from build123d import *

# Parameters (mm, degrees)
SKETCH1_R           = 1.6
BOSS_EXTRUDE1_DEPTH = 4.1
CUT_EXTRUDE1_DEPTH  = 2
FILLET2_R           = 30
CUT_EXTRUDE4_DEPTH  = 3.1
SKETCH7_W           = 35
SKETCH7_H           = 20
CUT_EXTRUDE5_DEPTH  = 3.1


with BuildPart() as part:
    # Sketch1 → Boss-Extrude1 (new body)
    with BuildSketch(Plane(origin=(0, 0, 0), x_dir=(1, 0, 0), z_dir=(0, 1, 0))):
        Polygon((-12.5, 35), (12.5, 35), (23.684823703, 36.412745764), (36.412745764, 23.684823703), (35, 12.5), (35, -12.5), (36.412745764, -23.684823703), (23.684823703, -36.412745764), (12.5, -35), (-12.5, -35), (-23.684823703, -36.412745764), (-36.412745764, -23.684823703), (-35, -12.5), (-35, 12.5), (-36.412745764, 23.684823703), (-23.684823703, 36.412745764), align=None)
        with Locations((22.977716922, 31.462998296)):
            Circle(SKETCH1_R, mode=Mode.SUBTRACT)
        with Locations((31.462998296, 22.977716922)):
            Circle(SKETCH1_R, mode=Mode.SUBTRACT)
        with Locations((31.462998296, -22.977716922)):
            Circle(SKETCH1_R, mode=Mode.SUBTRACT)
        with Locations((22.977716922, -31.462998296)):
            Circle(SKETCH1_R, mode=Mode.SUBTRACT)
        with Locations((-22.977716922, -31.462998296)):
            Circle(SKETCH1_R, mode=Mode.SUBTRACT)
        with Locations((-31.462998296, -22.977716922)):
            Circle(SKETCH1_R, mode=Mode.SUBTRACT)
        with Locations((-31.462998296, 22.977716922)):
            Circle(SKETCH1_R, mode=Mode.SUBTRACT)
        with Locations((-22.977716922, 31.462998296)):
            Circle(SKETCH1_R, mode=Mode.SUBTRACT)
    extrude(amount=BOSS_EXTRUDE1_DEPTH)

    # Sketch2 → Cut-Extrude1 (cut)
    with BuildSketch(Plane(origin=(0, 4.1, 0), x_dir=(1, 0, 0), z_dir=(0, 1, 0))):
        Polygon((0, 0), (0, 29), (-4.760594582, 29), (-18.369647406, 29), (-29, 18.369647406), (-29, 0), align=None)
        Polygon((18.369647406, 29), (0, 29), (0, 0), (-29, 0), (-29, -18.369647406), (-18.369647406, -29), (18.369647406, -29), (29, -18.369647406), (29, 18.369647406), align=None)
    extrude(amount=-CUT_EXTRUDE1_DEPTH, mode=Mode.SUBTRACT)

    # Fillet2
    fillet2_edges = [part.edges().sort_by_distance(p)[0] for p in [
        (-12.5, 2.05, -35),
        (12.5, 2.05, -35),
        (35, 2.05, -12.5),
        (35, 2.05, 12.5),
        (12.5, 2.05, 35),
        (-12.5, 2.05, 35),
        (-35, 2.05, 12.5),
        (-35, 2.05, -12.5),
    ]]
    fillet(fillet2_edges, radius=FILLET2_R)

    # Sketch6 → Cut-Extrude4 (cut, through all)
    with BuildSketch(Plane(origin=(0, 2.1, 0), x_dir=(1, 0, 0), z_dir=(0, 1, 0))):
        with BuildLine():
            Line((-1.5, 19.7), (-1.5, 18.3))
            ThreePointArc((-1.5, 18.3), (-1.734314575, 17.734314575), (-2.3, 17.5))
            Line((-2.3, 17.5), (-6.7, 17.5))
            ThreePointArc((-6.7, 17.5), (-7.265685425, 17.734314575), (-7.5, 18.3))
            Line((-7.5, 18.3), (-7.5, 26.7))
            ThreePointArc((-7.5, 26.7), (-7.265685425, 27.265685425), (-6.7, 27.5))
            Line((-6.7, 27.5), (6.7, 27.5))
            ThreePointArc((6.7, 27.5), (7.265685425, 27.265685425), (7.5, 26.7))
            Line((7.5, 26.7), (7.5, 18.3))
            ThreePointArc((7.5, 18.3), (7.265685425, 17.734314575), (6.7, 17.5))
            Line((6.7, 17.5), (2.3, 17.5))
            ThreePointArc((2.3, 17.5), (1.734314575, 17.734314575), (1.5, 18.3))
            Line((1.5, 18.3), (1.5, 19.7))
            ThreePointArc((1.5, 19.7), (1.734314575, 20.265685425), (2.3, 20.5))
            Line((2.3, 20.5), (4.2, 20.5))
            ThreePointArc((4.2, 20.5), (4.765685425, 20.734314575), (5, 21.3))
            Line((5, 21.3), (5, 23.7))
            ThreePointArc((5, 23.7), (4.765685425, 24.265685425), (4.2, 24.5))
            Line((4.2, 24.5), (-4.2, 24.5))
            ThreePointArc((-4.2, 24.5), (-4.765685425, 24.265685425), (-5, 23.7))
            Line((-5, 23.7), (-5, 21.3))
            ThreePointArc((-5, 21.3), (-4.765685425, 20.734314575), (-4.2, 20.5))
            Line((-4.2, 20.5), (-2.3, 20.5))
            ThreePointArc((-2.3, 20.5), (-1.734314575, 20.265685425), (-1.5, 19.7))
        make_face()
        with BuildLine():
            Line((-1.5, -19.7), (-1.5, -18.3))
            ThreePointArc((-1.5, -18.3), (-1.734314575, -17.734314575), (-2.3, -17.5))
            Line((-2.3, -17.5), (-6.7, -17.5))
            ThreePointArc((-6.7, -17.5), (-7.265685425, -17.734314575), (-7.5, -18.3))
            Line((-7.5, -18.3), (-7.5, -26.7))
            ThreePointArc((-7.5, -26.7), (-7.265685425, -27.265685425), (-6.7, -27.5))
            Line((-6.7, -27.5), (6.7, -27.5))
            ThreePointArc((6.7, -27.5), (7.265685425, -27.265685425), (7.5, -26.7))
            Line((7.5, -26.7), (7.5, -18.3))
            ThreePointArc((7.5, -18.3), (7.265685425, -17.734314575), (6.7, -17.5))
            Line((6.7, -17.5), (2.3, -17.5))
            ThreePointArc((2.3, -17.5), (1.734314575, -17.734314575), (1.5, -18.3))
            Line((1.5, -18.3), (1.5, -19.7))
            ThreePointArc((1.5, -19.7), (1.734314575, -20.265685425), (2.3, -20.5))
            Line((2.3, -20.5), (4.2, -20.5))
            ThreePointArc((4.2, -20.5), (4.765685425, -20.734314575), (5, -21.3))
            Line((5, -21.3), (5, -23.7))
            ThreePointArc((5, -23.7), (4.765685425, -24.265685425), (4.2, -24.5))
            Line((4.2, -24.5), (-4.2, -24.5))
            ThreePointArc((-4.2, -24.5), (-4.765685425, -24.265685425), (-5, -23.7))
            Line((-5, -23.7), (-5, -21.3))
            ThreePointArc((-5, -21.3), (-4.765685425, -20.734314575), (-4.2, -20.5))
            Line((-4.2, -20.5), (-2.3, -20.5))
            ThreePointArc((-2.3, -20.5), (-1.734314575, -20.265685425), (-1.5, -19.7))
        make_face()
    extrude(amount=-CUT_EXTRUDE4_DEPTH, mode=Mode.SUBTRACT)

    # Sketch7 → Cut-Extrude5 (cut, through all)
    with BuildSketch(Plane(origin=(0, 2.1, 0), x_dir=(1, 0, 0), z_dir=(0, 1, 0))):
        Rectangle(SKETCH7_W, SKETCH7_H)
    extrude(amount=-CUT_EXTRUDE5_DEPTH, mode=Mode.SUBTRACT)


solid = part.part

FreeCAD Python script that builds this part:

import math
import FreeCAD as App
import Part
import Sketcher


def edges_at(feature, points):
    """Names of the edges that pass closest to the given points."""
    edges = feature.Shape.Edges
    near = lambda p: min(range(len(edges)), key=lambda i: edges[i].distToShape(Part.Vertex(*p))[0])
    return sorted({f"Edge{near(p) + 1}" for p in points})

doc = App.newDocument("Part")
body = doc.addObject("PartDesign::Body", "Body")

# Sketch on XZ plane
sketch1 = body.newObject("Sketcher::SketchObject", "Sketch")
sketch1.AttachmentSupport = (doc.getObject("XZ_Plane"), [""])
sketch1.MapMode = "FlatFace"
sketch1.addGeometry([
    Part.LineSegment(App.Vector(12.5, -35, 0), App.Vector(-12.5, -35, 0)),  # 0
    Part.LineSegment(App.Vector(-12.5, -35, 0), App.Vector(-23.7, -36.4, 0)),  # 1
    Part.LineSegment(App.Vector(-23.7, -36.4, 0), App.Vector(-36.4, -23.7, 0)),  # 2
    Part.LineSegment(App.Vector(-36.4, -23.7, 0), App.Vector(-35, -12.5, 0)),  # 3
    Part.LineSegment(App.Vector(-35, -12.5, 0), App.Vector(-35, 12.5, 0)),  # 4
    Part.LineSegment(App.Vector(-35, 12.5, 0), App.Vector(-36.4, 23.7, 0)),  # 5
    Part.LineSegment(App.Vector(-36.4, 23.7, 0), App.Vector(-23.7, 36.4, 0)),  # 6
    Part.LineSegment(App.Vector(-23.7, 36.4, 0), App.Vector(-12.5, 35, 0)),  # 7
    Part.LineSegment(App.Vector(-12.5, 35, 0), App.Vector(12.5, 35, 0)),  # 8
    Part.LineSegment(App.Vector(12.5, 35, 0), App.Vector(23.7, 36.4, 0)),  # 9
    Part.LineSegment(App.Vector(23.7, 36.4, 0), App.Vector(36.4, 23.7, 0)),  # 10
    Part.LineSegment(App.Vector(36.4, 23.7, 0), App.Vector(35, 12.5, 0)),  # 11
    Part.LineSegment(App.Vector(35, 12.5, 0), App.Vector(35, -12.5, 0)),  # 12
    Part.LineSegment(App.Vector(35, -12.5, 0), App.Vector(36.4, -23.7, 0)),  # 13
    Part.LineSegment(App.Vector(36.4, -23.7, 0), App.Vector(23.7, -36.4, 0)),  # 14
    Part.LineSegment(App.Vector(23.7, -36.4, 0), App.Vector(12.5, -35, 0)),  # 15
    Part.Circle(App.Vector(23, 31.5, 0), App.Vector(0, 0, 1), 1.6),  # 16
    Part.Circle(App.Vector(31.5, 23, 0), App.Vector(0, 0, 1), 1.6),  # 17
    Part.Circle(App.Vector(-23, 31.5, 0), App.Vector(0, 0, 1), 1.6),  # 18
    Part.Circle(App.Vector(-31.5, 23, 0), App.Vector(0, 0, 1), 1.6),  # 19
    Part.Circle(App.Vector(31.5, -23, 0), App.Vector(0, 0, 1), 1.6),  # 20
    Part.Circle(App.Vector(23, -31.5, 0), App.Vector(0, 0, 1), 1.6),  # 21
    Part.Circle(App.Vector(-31.5, -23, 0), App.Vector(0, 0, 1), 1.6),  # 22
    Part.Circle(App.Vector(-23, -31.5, 0), App.Vector(0, 0, 1), 1.6),  # 23
], False)
sketch1.addConstraint([
    Sketcher.Constraint("Coincident", 0, 2, 1, 1),
    Sketcher.Constraint("Coincident", 1, 2, 2, 1),
    Sketcher.Constraint("Coincident", 2, 2, 3, 1),
    Sketcher.Constraint("Coincident", 3, 2, 4, 1),
    Sketcher.Constraint("Coincident", 4, 2, 5, 1),
    Sketcher.Constraint("Coincident", 5, 2, 6, 1),
    Sketcher.Constraint("Coincident", 6, 2, 7, 1),
    Sketcher.Constraint("Coincident", 7, 2, 8, 1),
    Sketcher.Constraint("Coincident", 8, 2, 9, 1),
    Sketcher.Constraint("Coincident", 9, 2, 10, 1),
    Sketcher.Constraint("Coincident", 10, 2, 11, 1),
    Sketcher.Constraint("Coincident", 11, 2, 12, 1),
    Sketcher.Constraint("Coincident", 12, 2, 13, 1),
    Sketcher.Constraint("Coincident", 13, 2, 14, 1),
    Sketcher.Constraint("Coincident", 14, 2, 15, 1),
    Sketcher.Constraint("Coincident", 15, 2, 0, 1),
    Sketcher.Constraint("Horizontal", 0),
    Sketcher.Constraint("Vertical", 4),
    Sketcher.Constraint("Horizontal", 8),
    Sketcher.Constraint("Vertical", 12),
    Sketcher.Constraint("Equal", 16, 17),
    Sketcher.Constraint("Equal", 17, 18),
    Sketcher.Constraint("Equal", 18, 19),
    Sketcher.Constraint("Equal", 19, 20),
    Sketcher.Constraint("Equal", 20, 21),
    Sketcher.Constraint("Equal", 21, 22),
    Sketcher.Constraint("Equal", 22, 23),
    Sketcher.Constraint("Symmetric", 19, 3, 20, 3, -1, 1),
    Sketcher.Constraint("Symmetric", 18, 3, 21, 3, -1, 1),
    Sketcher.Constraint("Symmetric", 17, 3, 22, 3, -1, 1),
    Sketcher.Constraint("Symmetric", 16, 3, 23, 3, -1, 1),
    Sketcher.Constraint("Symmetric", 0, 2, 8, 2, -1, 1),
    Sketcher.Constraint("Symmetric", 1, 2, 9, 2, -1, 1),
    Sketcher.Constraint("Symmetric", 2, 2, 10, 2, -1, 1),
    Sketcher.Constraint("Symmetric", 3, 2, 11, 2, -1, 1),
    Sketcher.Constraint("Symmetric", 5, 2, 13, 2, -1, 1),
    Sketcher.Constraint("Symmetric", 6, 2, 14, 2, -1, 1),
    Sketcher.Constraint("Symmetric", 16, 3, 18, 3, -2),
    Sketcher.Constraint("Symmetric", 17, 3, 19, 3, -2),
    Sketcher.Constraint("Symmetric", 6, 2, 9, 2, -2),
    Sketcher.Constraint("Symmetric", 5, 2, 10, 2, -2),
    Sketcher.Constraint("Perpendicular", 1, 5),
    Sketcher.Constraint("Perpendicular", 2, 6),
    Sketcher.Constraint("Perpendicular", 3, 7),
    Sketcher.Constraint("Perpendicular", 9, 13),
    Sketcher.Constraint("Perpendicular", 11, 15),
    Sketcher.Constraint("Horizontal", 4, 2, 11, 2),
    Sketcher.Constraint("Equal", 8, 4),
    Sketcher.Constraint("Equal", 1, 3),
    Sketcher.Constraint("Diameter", 16, 3.2),
    Sketcher.Constraint("DistanceX", 0, 2, 0, 1, 25.0),
    Sketcher.Constraint("Distance", 2, 18.0),
    Sketcher.Constraint("DistanceY", 0, 2, -1, 1, 35.0),
    Sketcher.Constraint("DistanceY", -1, 1, 16, 3, 31.462998),
    Sketcher.Constraint("DistanceX", -1, 1, 17, 3, 31.462998),
    Sketcher.Constraint("DistanceX", 16, 3, 17, 3, 8.485281),
    Sketcher.Constraint("DistanceY", 17, 3, 16, 3, 8.485281),
    Sketcher.Constraint("DistanceY", 1, 2, 22, 3, 13.435029),
])
pad1 = body.newObject("PartDesign::Pad", "Pad")
pad1.Profile = sketch1
pad1.Length = 4.1
pad1.Reversed = True

# Sketch on XZ plane
sketch2 = body.newObject("Sketcher::SketchObject", "Sketch001")
sketch2.AttachmentSupport = (doc.getObject("XZ_Plane"), [""])
sketch2.MapMode = "FlatFace"
sketch2.AttachmentOffset = App.Placement(App.Vector(0, 0, -4.1), App.Rotation())
sketch2.addGeometry([
    Part.LineSegment(App.Vector(-18, -29, 0), App.Vector(-29, -18, 0)),  # 0
    Part.LineSegment(App.Vector(-29, -18, 0), App.Vector(-29, 18, 0)),  # 1
    Part.LineSegment(App.Vector(-29, 18, 0), App.Vector(-18, 29, 0)),  # 2
    Part.LineSegment(App.Vector(-18, 29, 0), App.Vector(18, 29, 0)),  # 3
    Part.LineSegment(App.Vector(18, 29, 0), App.Vector(29, 18, 0)),  # 4
    Part.LineSegment(App.Vector(29, 18, 0), App.Vector(29, -18, 0)),  # 5
    Part.LineSegment(App.Vector(29, -18, 0), App.Vector(18, -29, 0)),  # 6
    Part.LineSegment(App.Vector(18, -29, 0), App.Vector(-18, -29, 0)),  # 7
], False)
sketch2.addConstraint([
    Sketcher.Constraint("Coincident", 0, 2, 1, 1),
    Sketcher.Constraint("Coincident", 1, 2, 2, 1),
    Sketcher.Constraint("Coincident", 2, 2, 3, 1),
    Sketcher.Constraint("Coincident", 3, 2, 4, 1),
    Sketcher.Constraint("Coincident", 4, 2, 5, 1),
    Sketcher.Constraint("Coincident", 5, 2, 6, 1),
    Sketcher.Constraint("Coincident", 6, 2, 7, 1),
    Sketcher.Constraint("Coincident", 7, 2, 0, 1),
    Sketcher.Constraint("Vertical", 1),
    Sketcher.Constraint("Horizontal", 3),
    Sketcher.Constraint("Vertical", 5),
    Sketcher.Constraint("Horizontal", 7),
    Sketcher.Constraint("Symmetric", 0, 2, 4, 2, -1, 1),
    Sketcher.Constraint("Symmetric", 2, 2, 6, 2, -1, 1),
    Sketcher.Constraint("Perpendicular", 0, 2),
    Sketcher.Constraint("Perpendicular", 2, 4),
    Sketcher.Constraint("Perpendicular", 4, 6),
    Sketcher.Constraint("Horizontal", 1, 2, 4, 2),
    Sketcher.Constraint("Vertical", 3, 2, 6, 2),
    Sketcher.Constraint("Equal", 7, 1),
    Sketcher.Constraint("DistanceX", 0, 2, -1, 1, 29.0),
    Sketcher.Constraint("Distance", 0, 15.033589),
])
pocket1 = body.newObject("PartDesign::Pocket", "Pocket")
pocket1.Profile = sketch2
pocket1.Length = 2
pocket1.Reversed = True
doc.recompute()

fillet = body.newObject("PartDesign::Fillet", "Fillet")
fillet.Base = (pocket1, edges_at(pocket1, [
    (-12.5, 2.05, -35),
    (12.5, 2.05, -35),
    (35, 2.05, -12.5),
    (35, 2.05, 12.5),
    (12.5, 2.05, 35),
    (-12.5, 2.05, 35),
    (-35, 2.05, 12.5),
    (-35, 2.05, -12.5),
]))
fillet.Radius = 30

# Sketch on XZ plane
sketch3 = body.newObject("Sketcher::SketchObject", "Sketch002")
sketch3.AttachmentSupport = (doc.getObject("XZ_Plane"), [""])
sketch3.MapMode = "FlatFace"
sketch3.AttachmentOffset = App.Placement(App.Vector(0, 0, -2.1), App.Rotation())
sketch3.addGeometry([
    Part.LineSegment(App.Vector(-1.5, -18.3, 0), App.Vector(-1.5, -19.7, 0)),  # 0
    Part.ArcOfCircle(Part.Circle(App.Vector(-2.3, -19.7, 0), App.Vector(0, 0, 1), 0.8), math.radians(-90), math.radians(0)),  # 1
    Part.LineSegment(App.Vector(-2.3, -20.5, 0), App.Vector(-4.2, -20.5, 0)),  # 2
    Part.ArcOfCircle(Part.Circle(App.Vector(-4.2, -21.3, 0), App.Vector(0, 0, 1), 0.8), math.radians(90), math.radians(180)),  # 3
    Part.LineSegment(App.Vector(-5, -21.3, 0), App.Vector(-5, -23.7, 0)),  # 4
    Part.ArcOfCircle(Part.Circle(App.Vector(-4.2, -23.7, 0), App.Vector(0, 0, 1), 0.8), math.radians(180), math.radians(270)),  # 5
    Part.LineSegment(App.Vector(-4.2, -24.5, 0), App.Vector(4.2, -24.5, 0)),  # 6
    Part.ArcOfCircle(Part.Circle(App.Vector(4.2, -23.7, 0), App.Vector(0, 0, 1), 0.8), math.radians(-90), math.radians(0)),  # 7
    Part.LineSegment(App.Vector(5, -23.7, 0), App.Vector(5, -21.3, 0)),  # 8
    Part.ArcOfCircle(Part.Circle(App.Vector(4.2, -21.3, 0), App.Vector(0, 0, 1), 0.8), math.radians(0), math.radians(90)),  # 9
    Part.LineSegment(App.Vector(4.2, -20.5, 0), App.Vector(2.3, -20.5, 0)),  # 10
    Part.ArcOfCircle(Part.Circle(App.Vector(2.3, -19.7, 0), App.Vector(0, 0, 1), 0.8), math.radians(180), math.radians(270)),  # 11
    Part.LineSegment(App.Vector(1.5, -19.7, 0), App.Vector(1.5, -18.3, 0)),  # 12
    Part.ArcOfCircle(Part.Circle(App.Vector(2.3, -18.3, 0), App.Vector(0, 0, 1), 0.8), math.radians(90), math.radians(180)),  # 13
    Part.LineSegment(App.Vector(2.3, -17.5, 0), App.Vector(6.7, -17.5, 0)),  # 14
    Part.ArcOfCircle(Part.Circle(App.Vector(6.7, -18.3, 0), App.Vector(0, 0, 1), 0.8), math.radians(0), math.radians(90)),  # 15
    Part.LineSegment(App.Vector(7.5, -18.3, 0), App.Vector(7.5, -26.7, 0)),  # 16
    Part.ArcOfCircle(Part.Circle(App.Vector(6.7, -26.7, 0), App.Vector(0, 0, 1), 0.8), math.radians(-90), math.radians(0)),  # 17
    Part.LineSegment(App.Vector(6.7, -27.5, 0), App.Vector(-6.7, -27.5, 0)),  # 18
    Part.ArcOfCircle(Part.Circle(App.Vector(-6.7, -26.7, 0), App.Vector(0, 0, 1), 0.8), math.radians(180), math.radians(270)),  # 19
    Part.LineSegment(App.Vector(-7.5, -26.7, 0), App.Vector(-7.5, -18.3, 0)),  # 20
    Part.ArcOfCircle(Part.Circle(App.Vector(-6.7, -18.3, 0), App.Vector(0, 0, 1), 0.8), math.radians(90), math.radians(180)),  # 21
    Part.LineSegment(App.Vector(-6.7, -17.5, 0), App.Vector(-2.3, -17.5, 0)),  # 22
    Part.ArcOfCircle(Part.Circle(App.Vector(-2.3, -18.3, 0), App.Vector(0, 0, 1), 0.8), math.radians(0), math.radians(90)),  # 23
    Part.LineSegment(App.Vector(-1.5, 19.7, 0), App.Vector(-1.5, 18.3, 0)),  # 24
    Part.ArcOfCircle(Part.Circle(App.Vector(-2.3, 18.3, 0), App.Vector(0, 0, 1), 0.8), math.radians(-90), math.radians(0)),  # 25
    Part.LineSegment(App.Vector(-2.3, 17.5, 0), App.Vector(-6.7, 17.5, 0)),  # 26
    Part.ArcOfCircle(Part.Circle(App.Vector(-6.7, 18.3, 0), App.Vector(0, 0, 1), 0.8), math.radians(180), math.radians(270)),  # 27
    Part.LineSegment(App.Vector(-7.5, 18.3, 0), App.Vector(-7.5, 26.7, 0)),  # 28
    Part.ArcOfCircle(Part.Circle(App.Vector(-6.7, 26.7, 0), App.Vector(0, 0, 1), 0.8), math.radians(90), math.radians(180)),  # 29
    Part.LineSegment(App.Vector(-6.7, 27.5, 0), App.Vector(6.7, 27.5, 0)),  # 30
    Part.ArcOfCircle(Part.Circle(App.Vector(6.7, 26.7, 0), App.Vector(0, 0, 1), 0.8), math.radians(0), math.radians(90)),  # 31
    Part.LineSegment(App.Vector(7.5, 26.7, 0), App.Vector(7.5, 18.3, 0)),  # 32
    Part.ArcOfCircle(Part.Circle(App.Vector(6.7, 18.3, 0), App.Vector(0, 0, 1), 0.8), math.radians(-90), math.radians(0)),  # 33
    Part.LineSegment(App.Vector(6.7, 17.5, 0), App.Vector(2.3, 17.5, 0)),  # 34
    Part.ArcOfCircle(Part.Circle(App.Vector(2.3, 18.3, 0), App.Vector(0, 0, 1), 0.8), math.radians(180), math.radians(270)),  # 35
    Part.LineSegment(App.Vector(1.5, 18.3, 0), App.Vector(1.5, 19.7, 0)),  # 36
    Part.ArcOfCircle(Part.Circle(App.Vector(2.3, 19.7, 0), App.Vector(0, 0, 1), 0.8), math.radians(90), math.radians(180)),  # 37
    Part.LineSegment(App.Vector(2.3, 20.5, 0), App.Vector(4.2, 20.5, 0)),  # 38
    Part.ArcOfCircle(Part.Circle(App.Vector(4.2, 21.3, 0), App.Vector(0, 0, 1), 0.8), math.radians(-90), math.radians(0)),  # 39
    Part.LineSegment(App.Vector(5, 21.3, 0), App.Vector(5, 23.7, 0)),  # 40
    Part.ArcOfCircle(Part.Circle(App.Vector(4.2, 23.7, 0), App.Vector(0, 0, 1), 0.8), math.radians(0), math.radians(90)),  # 41
    Part.LineSegment(App.Vector(4.2, 24.5, 0), App.Vector(-4.2, 24.5, 0)),  # 42
    Part.ArcOfCircle(Part.Circle(App.Vector(-4.2, 23.7, 0), App.Vector(0, 0, 1), 0.8), math.radians(90), math.radians(180)),  # 43
    Part.LineSegment(App.Vector(-5, 23.7, 0), App.Vector(-5, 21.3, 0)),  # 44
    Part.ArcOfCircle(Part.Circle(App.Vector(-4.2, 21.3, 0), App.Vector(0, 0, 1), 0.8), math.radians(180), math.radians(270)),  # 45
    Part.LineSegment(App.Vector(-4.2, 20.5, 0), App.Vector(-2.3, 20.5, 0)),  # 46
    Part.ArcOfCircle(Part.Circle(App.Vector(-2.3, 19.7, 0), App.Vector(0, 0, 1), 0.8), math.radians(0), math.radians(90)),  # 47
], False)
sketch3.addConstraint([
    Sketcher.Constraint("Tangent", 0, 2, 1, 2),
    Sketcher.Constraint("Tangent", 1, 1, 2, 1),
    Sketcher.Constraint("Tangent", 2, 2, 3, 1),
    Sketcher.Constraint("Tangent", 3, 2, 4, 1),
    Sketcher.Constraint("Tangent", 4, 2, 5, 1),
    Sketcher.Constraint("Tangent", 5, 2, 6, 1),
    Sketcher.Constraint("Tangent", 6, 2, 7, 1),
    Sketcher.Constraint("Tangent", 7, 2, 8, 1),
    Sketcher.Constraint("Tangent", 8, 2, 9, 1),
    Sketcher.Constraint("Tangent", 9, 2, 10, 1),
    Sketcher.Constraint("Tangent", 10, 2, 11, 2),
    Sketcher.Constraint("Tangent", 11, 1, 12, 1),
    Sketcher.Constraint("Tangent", 12, 2, 13, 2),
    Sketcher.Constraint("Tangent", 13, 1, 14, 1),
    Sketcher.Constraint("Tangent", 14, 2, 15, 2),
    Sketcher.Constraint("Tangent", 15, 1, 16, 1),
    Sketcher.Constraint("Tangent", 16, 2, 17, 2),
    Sketcher.Constraint("Tangent", 17, 1, 18, 1),
    Sketcher.Constraint("Tangent", 18, 2, 19, 2),
    Sketcher.Constraint("Tangent", 19, 1, 20, 1),
    Sketcher.Constraint("Tangent", 20, 2, 21, 2),
    Sketcher.Constraint("Tangent", 21, 1, 22, 1),
    Sketcher.Constraint("Tangent", 22, 2, 23, 2),
    Sketcher.Constraint("Tangent", 23, 1, 0, 1),
    Sketcher.Constraint("Tangent", 24, 2, 25, 2),
    Sketcher.Constraint("Tangent", 25, 1, 26, 1),
    Sketcher.Constraint("Tangent", 26, 2, 27, 2),
    Sketcher.Constraint("Tangent", 27, 1, 28, 1),
    Sketcher.Constraint("Tangent", 28, 2, 29, 2),
    Sketcher.Constraint("Tangent", 29, 1, 30, 1),
    Sketcher.Constraint("Tangent", 30, 2, 31, 2),
    Sketcher.Constraint("Tangent", 31, 1, 32, 1),
    Sketcher.Constraint("Tangent", 32, 2, 33, 2),
    Sketcher.Constraint("Tangent", 33, 1, 34, 1),
    Sketcher.Constraint("Tangent", 34, 2, 35, 2),
    Sketcher.Constraint("Tangent", 35, 1, 36, 1),
    Sketcher.Constraint("Tangent", 36, 2, 37, 2),
    Sketcher.Constraint("Tangent", 37, 1, 38, 1),
    Sketcher.Constraint("Tangent", 38, 2, 39, 1),
    Sketcher.Constraint("Tangent", 39, 2, 40, 1),
    Sketcher.Constraint("Tangent", 40, 2, 41, 1),
    Sketcher.Constraint("Tangent", 41, 2, 42, 1),
    Sketcher.Constraint("Tangent", 42, 2, 43, 1),
    Sketcher.Constraint("Tangent", 43, 2, 44, 1),
    Sketcher.Constraint("Tangent", 44, 2, 45, 1),
    Sketcher.Constraint("Tangent", 45, 2, 46, 1),
    Sketcher.Constraint("Tangent", 46, 2, 47, 2),
    Sketcher.Constraint("Tangent", 47, 1, 24, 1),
    Sketcher.Constraint("Vertical", 0),
    Sketcher.Constraint("Horizontal", 2),
    Sketcher.Constraint("Vertical", 4),
    Sketcher.Constraint("Horizontal", 6),
    Sketcher.Constraint("Vertical", 8),
    Sketcher.Constraint("Horizontal", 10),
    Sketcher.Constraint("Vertical", 12),
    Sketcher.Constraint("Horizontal", 14),
    Sketcher.Constraint("Vertical", 16),
    Sketcher.Constraint("Horizontal", 18),
    Sketcher.Constraint("Vertical", 20),
    Sketcher.Constraint("Horizontal", 22),
    Sketcher.Constraint("Vertical", 24),
    Sketcher.Constraint("Horizontal", 26),
    Sketcher.Constraint("Vertical", 28),
    Sketcher.Constraint("Horizontal", 30),
    Sketcher.Constraint("Vertical", 32),
    Sketcher.Constraint("Horizontal", 34),
    Sketcher.Constraint("Vertical", 36),
    Sketcher.Constraint("Horizontal", 38),
    Sketcher.Constraint("Vertical", 40),
    Sketcher.Constraint("Horizontal", 42),
    Sketcher.Constraint("Vertical", 44),
    Sketcher.Constraint("Horizontal", 46),
    Sketcher.Constraint("Equal", 1, 3),
    Sketcher.Constraint("Equal", 3, 5),
    Sketcher.Constraint("Equal", 5, 7),
    Sketcher.Constraint("Equal", 7, 9),
    Sketcher.Constraint("Equal", 9, 11),
    Sketcher.Constraint("Equal", 11, 13),
    Sketcher.Constraint("Equal", 13, 15),
    Sketcher.Constraint("Equal", 15, 17),
    Sketcher.Constraint("Equal", 17, 19),
    Sketcher.Constraint("Equal", 19, 21),
    Sketcher.Constraint("Equal", 21, 23),
    Sketcher.Constraint("Equal", 23, 25),
    Sketcher.Constraint("Equal", 25, 27),
    Sketcher.Constraint("Equal", 27, 29),
    Sketcher.Constraint("Equal", 29, 31),
    Sketcher.Constraint("Equal", 31, 33),
    Sketcher.Constraint("Equal", 33, 35),
    Sketcher.Constraint("Equal", 35, 37),
    Sketcher.Constraint("Equal", 37, 39),
    Sketcher.Constraint("Equal", 39, 41),
    Sketcher.Constraint("Equal", 41, 43),
    Sketcher.Constraint("Equal", 43, 45),
    Sketcher.Constraint("Equal", 45, 47),
    Sketcher.Constraint("Symmetric", 13, 3, 25, 3, -1, 1),
    Sketcher.Constraint("Symmetric", 17, 3, 29, 3, -1, 1),
    Sketcher.Constraint("Symmetric", 21, 3, 33, 3, -1, 1),
    Sketcher.Constraint("Symmetric", 1, 3, 37, 3, -1, 1),
    Sketcher.Constraint("Symmetric", 5, 3, 41, 3, -1, 1),
    Sketcher.Constraint("Symmetric", 9, 3, 45, 3, -1, 1),
    Sketcher.Constraint("Symmetric", 3, 3, 9, 3, -2),
    Sketcher.Constraint("Symmetric", 15, 3, 21, 3, -2),
    Sketcher.Constraint("Vertical", 23, 3, 25, 3),
    Sketcher.Constraint("Equal", 42, 16),
    Sketcher.Constraint("Radius", 1, 0.8),
    Sketcher.Constraint("DistanceX", 2, 2, 2, 1, 1.9),
    Sketcher.Constraint("DistanceX", 6, 1, 6, 2, 8.4),
    Sketcher.Constraint("DistanceX", 14, 1, 14, 2, 4.4),
    Sketcher.Constraint("DistanceY", 0, 2, 0, 1, 1.4),
    Sketcher.Constraint("DistanceY", 4, 2, 4, 1, 2.4),
    Sketcher.Constraint("DistanceY", 1, 3, -1, 1, 19.7),
])
pocket2 = body.newObject("PartDesign::Pocket", "Pocket001")
pocket2.Profile = sketch3
pocket2.Type = "ThroughAll"
pocket2.Reversed = True

# Sketch on XZ plane
sketch4 = body.newObject("Sketcher::SketchObject", "Sketch003")
sketch4.AttachmentSupport = (doc.getObject("XZ_Plane"), [""])
sketch4.MapMode = "FlatFace"
sketch4.AttachmentOffset = App.Placement(App.Vector(0, 0, -2.1), App.Rotation())
sketch4.addGeometry([
    Part.LineSegment(App.Vector(-18, -10, 0), App.Vector(-18, 10, 0)),
    Part.LineSegment(App.Vector(-18, 10, 0), App.Vector(18, 10, 0)),
    Part.LineSegment(App.Vector(18, 10, 0), App.Vector(18, -10, 0)),
    Part.LineSegment(App.Vector(18, -10, 0), App.Vector(-18, -10, 0)),
], False)
sketch4.addConstraint([
    Sketcher.Constraint("Coincident", 0, 2, 1, 1),
    Sketcher.Constraint("Coincident", 1, 2, 2, 1),
    Sketcher.Constraint("Coincident", 2, 2, 3, 1),
    Sketcher.Constraint("Coincident", 3, 2, 0, 1),
    Sketcher.Constraint("Vertical", 0),
    Sketcher.Constraint("Horizontal", 1),
    Sketcher.Constraint("Vertical", 2),
    Sketcher.Constraint("Horizontal", 3),
    Sketcher.Constraint("Symmetric", 0, 2, 2, 2, -1, 1),
    Sketcher.Constraint("DistanceX", 1, 1, 1, 2, 35.0),
    Sketcher.Constraint("DistanceY", 0, 1, 0, 2, 20.0),
])
pocket3 = body.newObject("PartDesign::Pocket", "Pocket002")
pocket3.Profile = sketch4
pocket3.Type = "ThroughAll"
pocket3.Reversed = True

doc.recompute()
